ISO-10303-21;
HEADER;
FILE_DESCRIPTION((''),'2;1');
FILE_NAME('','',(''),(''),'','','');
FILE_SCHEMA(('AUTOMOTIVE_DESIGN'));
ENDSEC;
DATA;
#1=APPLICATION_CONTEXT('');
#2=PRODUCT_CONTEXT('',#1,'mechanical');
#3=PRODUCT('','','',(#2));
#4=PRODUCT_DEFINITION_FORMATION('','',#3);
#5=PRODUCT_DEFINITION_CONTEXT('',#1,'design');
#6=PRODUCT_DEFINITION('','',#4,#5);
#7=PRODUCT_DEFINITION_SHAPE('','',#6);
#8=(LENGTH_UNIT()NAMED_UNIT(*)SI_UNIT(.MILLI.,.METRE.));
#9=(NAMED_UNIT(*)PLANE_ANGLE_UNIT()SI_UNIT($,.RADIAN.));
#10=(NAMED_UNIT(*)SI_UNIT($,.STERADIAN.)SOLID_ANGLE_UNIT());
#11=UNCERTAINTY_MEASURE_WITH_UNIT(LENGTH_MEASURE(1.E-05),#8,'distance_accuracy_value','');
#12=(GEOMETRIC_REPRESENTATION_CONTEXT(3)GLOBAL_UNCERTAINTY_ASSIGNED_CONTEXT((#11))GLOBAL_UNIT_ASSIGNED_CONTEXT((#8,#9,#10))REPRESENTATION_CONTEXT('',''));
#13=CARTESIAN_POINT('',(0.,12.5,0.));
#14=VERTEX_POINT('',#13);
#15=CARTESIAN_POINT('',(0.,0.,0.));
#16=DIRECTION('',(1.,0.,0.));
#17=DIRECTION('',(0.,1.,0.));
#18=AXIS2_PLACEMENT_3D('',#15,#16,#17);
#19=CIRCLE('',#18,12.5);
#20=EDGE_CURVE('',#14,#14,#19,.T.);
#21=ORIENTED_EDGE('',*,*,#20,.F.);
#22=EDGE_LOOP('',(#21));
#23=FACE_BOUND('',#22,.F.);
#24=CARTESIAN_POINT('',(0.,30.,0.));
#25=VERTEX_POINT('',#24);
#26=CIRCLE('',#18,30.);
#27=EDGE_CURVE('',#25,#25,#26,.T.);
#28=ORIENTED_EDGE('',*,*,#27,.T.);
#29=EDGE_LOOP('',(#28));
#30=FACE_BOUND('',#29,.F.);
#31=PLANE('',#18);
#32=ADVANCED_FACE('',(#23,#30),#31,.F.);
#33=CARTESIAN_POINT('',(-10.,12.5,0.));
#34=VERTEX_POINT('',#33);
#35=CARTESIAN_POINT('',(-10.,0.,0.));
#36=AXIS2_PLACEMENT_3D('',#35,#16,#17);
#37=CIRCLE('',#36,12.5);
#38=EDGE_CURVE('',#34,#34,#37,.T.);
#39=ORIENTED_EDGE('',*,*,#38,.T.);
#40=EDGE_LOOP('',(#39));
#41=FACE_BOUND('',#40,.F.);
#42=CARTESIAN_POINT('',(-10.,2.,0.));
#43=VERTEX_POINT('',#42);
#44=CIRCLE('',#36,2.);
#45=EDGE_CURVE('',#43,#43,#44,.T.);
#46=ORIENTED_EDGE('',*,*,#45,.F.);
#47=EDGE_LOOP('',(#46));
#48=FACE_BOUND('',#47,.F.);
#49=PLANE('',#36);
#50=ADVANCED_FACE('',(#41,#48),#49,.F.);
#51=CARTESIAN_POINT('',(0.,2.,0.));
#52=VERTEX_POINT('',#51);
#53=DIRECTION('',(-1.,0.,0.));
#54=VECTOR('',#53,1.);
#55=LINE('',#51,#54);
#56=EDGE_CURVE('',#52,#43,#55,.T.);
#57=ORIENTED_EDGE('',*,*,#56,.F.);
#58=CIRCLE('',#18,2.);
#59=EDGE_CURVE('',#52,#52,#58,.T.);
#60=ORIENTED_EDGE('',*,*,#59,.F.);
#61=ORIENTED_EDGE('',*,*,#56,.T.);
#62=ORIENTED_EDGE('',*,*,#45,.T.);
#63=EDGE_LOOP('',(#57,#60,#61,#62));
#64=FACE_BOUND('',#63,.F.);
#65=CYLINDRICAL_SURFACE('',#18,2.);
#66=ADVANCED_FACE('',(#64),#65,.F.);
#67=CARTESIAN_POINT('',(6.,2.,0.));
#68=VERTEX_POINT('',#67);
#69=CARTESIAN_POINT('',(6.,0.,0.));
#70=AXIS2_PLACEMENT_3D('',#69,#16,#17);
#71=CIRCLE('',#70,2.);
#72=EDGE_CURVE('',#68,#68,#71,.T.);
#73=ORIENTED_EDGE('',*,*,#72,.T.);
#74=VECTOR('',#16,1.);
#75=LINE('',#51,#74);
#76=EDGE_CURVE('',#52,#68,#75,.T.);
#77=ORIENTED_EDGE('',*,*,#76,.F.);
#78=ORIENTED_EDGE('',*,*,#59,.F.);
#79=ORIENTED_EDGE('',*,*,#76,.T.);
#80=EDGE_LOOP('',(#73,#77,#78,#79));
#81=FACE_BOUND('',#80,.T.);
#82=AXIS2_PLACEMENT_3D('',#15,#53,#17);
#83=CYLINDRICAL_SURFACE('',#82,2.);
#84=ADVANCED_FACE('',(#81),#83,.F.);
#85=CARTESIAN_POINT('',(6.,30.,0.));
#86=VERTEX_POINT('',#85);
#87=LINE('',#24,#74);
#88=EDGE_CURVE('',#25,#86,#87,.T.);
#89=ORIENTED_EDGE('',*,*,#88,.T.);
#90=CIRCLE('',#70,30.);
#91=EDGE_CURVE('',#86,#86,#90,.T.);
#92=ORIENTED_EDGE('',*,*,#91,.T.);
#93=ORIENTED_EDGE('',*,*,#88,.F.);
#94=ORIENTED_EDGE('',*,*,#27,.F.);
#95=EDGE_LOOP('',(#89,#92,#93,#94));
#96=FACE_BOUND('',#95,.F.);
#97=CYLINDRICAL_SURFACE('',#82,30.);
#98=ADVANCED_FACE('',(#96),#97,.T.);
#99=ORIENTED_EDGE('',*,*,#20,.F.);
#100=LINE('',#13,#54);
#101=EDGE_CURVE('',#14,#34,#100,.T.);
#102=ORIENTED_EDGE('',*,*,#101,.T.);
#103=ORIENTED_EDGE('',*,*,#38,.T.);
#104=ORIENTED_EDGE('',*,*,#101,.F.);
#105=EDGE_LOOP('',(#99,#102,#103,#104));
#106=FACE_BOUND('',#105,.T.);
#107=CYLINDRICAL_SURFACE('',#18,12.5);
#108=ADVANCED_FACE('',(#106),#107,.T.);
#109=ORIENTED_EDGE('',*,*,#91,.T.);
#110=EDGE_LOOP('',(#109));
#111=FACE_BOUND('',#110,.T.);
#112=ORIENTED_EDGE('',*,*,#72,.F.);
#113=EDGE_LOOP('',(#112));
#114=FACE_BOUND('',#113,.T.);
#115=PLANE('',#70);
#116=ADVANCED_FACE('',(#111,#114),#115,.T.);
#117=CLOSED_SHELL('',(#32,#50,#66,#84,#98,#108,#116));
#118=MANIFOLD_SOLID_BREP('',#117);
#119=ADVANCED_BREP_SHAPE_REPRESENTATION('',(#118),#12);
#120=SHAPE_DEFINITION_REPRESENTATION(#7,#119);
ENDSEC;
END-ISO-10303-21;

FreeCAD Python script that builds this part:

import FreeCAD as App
import Part
import Sketcher
from FreeCAD import Vector

doc = App.newDocument("Part")
body = doc.addObject("PartDesign::Body", "Body")

# Sketch on YZ plane
sketch1 = body.newObject("Sketcher::SketchObject", "Sketch")
sketch1.AttachmentSupport = (doc.getObject("YZ_Plane"), [""])
sketch1.MapMode = "FlatFace"
sketch1.addGeometry(Part.Circle(Vector(0, 0, 0), Vector(0, 0, 1), 30), False)
sketch1.addGeometry(Part.Circle(Vector(0, 0, 0), Vector(0, 0, 1), 2), False)
sketch1.addConstraint(Sketcher.Constraint("Coincident", 0, 3, -1, 1))
sketch1.addConstraint(Sketcher.Constraint("Coincident", 1, 3, -1, 1))
sketch1.addConstraint(Sketcher.Constraint("Diameter", 0, 60.0))
sketch1.addConstraint(Sketcher.Constraint("Diameter", 1, 4.0))
pad1 = body.newObject("PartDesign::Pad", "Pad")
pad1.Profile = sketch1
pad1.Length = 6

# Sketch on YZ plane
sketch2 = body.newObject("Sketcher::SketchObject", "Sketch001")
sketch2.AttachmentSupport = (doc.getObject("YZ_Plane"), [""])
sketch2.MapMode = "FlatFace"
sketch2.addGeometry(Part.Circle(Vector(0, 0, 0), Vector(0, 0, 1), 12.5), False)
sketch2.addGeometry(Part.Circle(Vector(0, 0, 0), Vector(0, 0, 1), 2), False)
sketch2.addConstraint(Sketcher.Constraint("Coincident", 0, 3, -1, 1))
sketch2.addConstraint(Sketcher.Constraint("Coincident", 1, 3, -1, 1))
sketch2.addConstraint(Sketcher.Constraint("Diameter", 0, 25.0))
sketch2.addConstraint(Sketcher.Constraint("Diameter", 1, 4.0))
pad2 = body.newObject("PartDesign::Pad", "Pad001")
pad2.Profile = sketch2
pad2.Length = 10
pad2.Reversed = True

doc.recompute()
